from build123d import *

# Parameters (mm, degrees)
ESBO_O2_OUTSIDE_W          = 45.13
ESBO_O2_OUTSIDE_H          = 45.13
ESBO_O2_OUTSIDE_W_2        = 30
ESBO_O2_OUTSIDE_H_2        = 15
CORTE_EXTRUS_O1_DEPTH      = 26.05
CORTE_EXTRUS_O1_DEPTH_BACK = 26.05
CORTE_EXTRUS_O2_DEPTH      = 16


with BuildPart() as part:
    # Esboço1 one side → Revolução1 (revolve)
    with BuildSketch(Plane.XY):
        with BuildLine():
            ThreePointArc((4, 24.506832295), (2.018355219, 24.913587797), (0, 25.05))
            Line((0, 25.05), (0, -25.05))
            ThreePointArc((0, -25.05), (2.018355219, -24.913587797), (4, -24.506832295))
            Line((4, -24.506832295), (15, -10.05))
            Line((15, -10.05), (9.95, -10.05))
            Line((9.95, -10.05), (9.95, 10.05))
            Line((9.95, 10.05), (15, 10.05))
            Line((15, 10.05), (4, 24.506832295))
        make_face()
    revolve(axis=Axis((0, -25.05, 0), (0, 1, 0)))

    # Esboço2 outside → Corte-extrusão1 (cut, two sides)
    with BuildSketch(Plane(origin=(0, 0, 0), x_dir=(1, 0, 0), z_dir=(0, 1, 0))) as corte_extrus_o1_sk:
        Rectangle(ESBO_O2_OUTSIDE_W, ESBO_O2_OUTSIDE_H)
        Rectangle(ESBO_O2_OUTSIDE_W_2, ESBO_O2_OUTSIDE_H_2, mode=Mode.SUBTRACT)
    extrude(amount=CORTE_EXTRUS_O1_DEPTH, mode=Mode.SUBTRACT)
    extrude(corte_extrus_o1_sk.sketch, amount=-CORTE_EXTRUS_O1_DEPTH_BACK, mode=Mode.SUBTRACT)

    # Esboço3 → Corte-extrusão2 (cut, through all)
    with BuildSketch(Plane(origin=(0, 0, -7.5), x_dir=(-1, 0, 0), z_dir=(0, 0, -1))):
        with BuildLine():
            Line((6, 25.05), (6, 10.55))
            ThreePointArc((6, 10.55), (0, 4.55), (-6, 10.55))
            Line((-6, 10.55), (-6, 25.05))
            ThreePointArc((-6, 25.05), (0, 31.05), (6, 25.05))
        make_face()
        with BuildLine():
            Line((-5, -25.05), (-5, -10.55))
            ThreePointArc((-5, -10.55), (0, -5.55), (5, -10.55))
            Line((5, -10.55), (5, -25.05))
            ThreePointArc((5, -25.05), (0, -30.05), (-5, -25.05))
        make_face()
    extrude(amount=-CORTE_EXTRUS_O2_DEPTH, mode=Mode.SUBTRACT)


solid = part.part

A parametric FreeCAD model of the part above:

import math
import FreeCAD as App
import Part
import Sketcher
Q = App.Units.Quantity

doc = App.newDocument("Part")
body = doc.addObject("PartDesign::Body", "Body")

sketch1 = doc.addObject("Sketcher::SketchObject", "Sketch")
body.addObject(sketch1)
sketch1.AttachmentSupport = (doc.XY_Plane, [""])
sketch1.MapMode = "FlatFace"
sketch1.addGeometry([
    Part.ArcOfCircle(Part.Circle(App.Vector(0, 10.05, 0), App.Vector(0, 0, 1), 15), math.radians(74.53399), math.radians(90)),
    Part.LineSegment(App.Vector(0, 25.05, 0), App.Vector(0, -25.05, 0)),
    Part.ArcOfCircle(Part.Circle(App.Vector(0, -10.05, 0), App.Vector(0, 0, 1), 15), math.radians(-90), math.radians(-74.53399)),
    Part.LineSegment(App.Vector(4, -24.506832, 0), App.Vector(15, -10.05, 0)),
    Part.LineSegment(App.Vector(15, -10.05, 0), App.Vector(9.95, -10.05, 0)),
    Part.LineSegment(App.Vector(9.95, -10.05, 0), App.Vector(9.95, 10.05, 0)),
    Part.LineSegment(App.Vector(9.95, 10.05, 0), App.Vector(15, 10.05, 0)),
    Part.LineSegment(App.Vector(15, 10.05, 0), App.Vector(4, 24.506832, 0)),
], False)
sketch1.addConstraint([
    Sketcher.Constraint("Coincident", 0, 2, 1, 1),
    Sketcher.Constraint("Coincident", 1, 2, 2, 1),
    Sketcher.Constraint("Coincident", 2, 2, 3, 1),
    Sketcher.Constraint("Coincident", 3, 2, 4, 1),
    Sketcher.Constraint("Coincident", 4, 2, 5, 1),
    Sketcher.Constraint("Coincident", 5, 2, 6, 1),
    Sketcher.Constraint("Coincident", 6, 2, 7, 1),
    Sketcher.Constraint("Coincident", 7, 2, 0, 1),
    Sketcher.Constraint("Vertical", 1),
    Sketcher.Constraint("Horizontal", 4),
    Sketcher.Constraint("Vertical", 5),
    Sketcher.Constraint("Horizontal", 6),
    Sketcher.Constraint("Equal", 0, 2),
    Sketcher.Constraint("Symmetric", 0, 3, 2, 3, -1, 1),
    Sketcher.Constraint("Symmetric", 3, 2, 6, 2, -1),
    Sketcher.Constraint("Symmetric", 2, 2, 7, 2, -1),
    Sketcher.Constraint("PointOnObject", 0, 2, -2),
    Sketcher.Constraint("Horizontal", 2, 3, 3, 2),
    Sketcher.Constraint("Radius", 0, Q("15 mm")),
    Sketcher.Constraint("DistanceY", 1, 2, 1, 1, Q("50.1 mm")),
    Sketcher.Constraint("DistanceX", -1, 1, 2, 2, Q("4 mm")),
    Sketcher.Constraint("DistanceX", -1, 1, 3, 2, Q("15 mm")),
    Sketcher.Constraint("DistanceX", 4, 2, 4, 1, Q("5.05 mm")),
])
revolution = doc.addObject("PartDesign::Revolution", "Revolution")
body.addObject(revolution)
revolution.Profile = sketch1
revolution.ReferenceAxis = (sketch1, ["V_Axis"])
revolution.Angle = 360

sketch2 = doc.addObject("Sketcher::SketchObject", "Sketch001")
body.addObject(sketch2)
sketch2.AttachmentSupport = (doc.XZ_Plane, [""])
sketch2.MapMode = "FlatFace"
sketch2.addGeometry([
    Part.LineSegment(App.Vector(-22.565, -22.565, 0), App.Vector(-22.565, 22.565, 0)),
    Part.LineSegment(App.Vector(-22.565, 22.565, 0), App.Vector(22.565, 22.565, 0)),
    Part.LineSegment(App.Vector(22.565, 22.565, 0), App.Vector(22.565, -22.565, 0)),
    Part.LineSegment(App.Vector(22.565, -22.565, 0), App.Vector(-22.565, -22.565, 0)),
    Part.LineSegment(App.Vector(15, 7.5, 0), App.Vector(-15, 7.5, 0)),
    Part.LineSegment(App.Vector(-15, 7.5, 0), App.Vector(-15, -7.5, 0)),
    Part.LineSegment(App.Vector(-15, -7.5, 0), App.Vector(15, -7.5, 0)),
    Part.LineSegment(App.Vector(15, -7.5, 0), App.Vector(15, 7.5, 0)),
], False)
sketch2.addConstraint([
    Sketcher.Constraint("Coincident", 0, 2, 1, 1),
    Sketcher.Constraint("Coincident", 1, 2, 2, 1),
    Sketcher.Constraint("Coincident", 2, 2, 3, 1),
    Sketcher.Constraint("Coincident", 3, 2, 0, 1),
    Sketcher.Constraint("Coincident", 4, 2, 5, 1),
    Sketcher.Constraint("Coincident", 5, 2, 6, 1),
    Sketcher.Constraint("Coincident", 6, 2, 7, 1),
    Sketcher.Constraint("Coincident", 7, 2, 4, 1),
    Sketcher.Constraint("Vertical", 0),
    Sketcher.Constraint("Horizontal", 1),
    Sketcher.Constraint("Vertical", 2),
    Sketcher.Constraint("Horizontal", 3),
    Sketcher.Constraint("Horizontal", 4),
    Sketcher.Constraint("Vertical", 5),
    Sketcher.Constraint("Horizontal", 6),
    Sketcher.Constraint("Vertical", 7),
    Sketcher.Constraint("Symmetric", 0, 2, 2, 2, -1, 1),
    Sketcher.Constraint("Symmetric", 4, 2, 6, 2, -1, 1),
    Sketcher.Constraint("Equal", 3, 0),
    Sketcher.Constraint("DistanceX", 4, 2, 4, 1, Q("30 mm")),
    Sketcher.Constraint("DistanceY", 5, 2, 5, 1, Q("15 mm")),
    Sketcher.Constraint("DistanceX", 1, 1, 1, 2, Q("45.13 mm")),
])
pocket1 = doc.addObject("PartDesign::Pocket", "Pocket")
body.addObject(pocket1)
pocket1.Profile = sketch2
pocket1.Type = "ThroughAll"
pocket1.Midplane = True

sketch3 = doc.addObject("Sketcher::SketchObject", "Sketch002")
body.addObject(sketch3)
sketch3.AttachmentSupport = (doc.XY_Plane, [""])
sketch3.MapMode = "FlatFace"
sketch3.AttachmentOffset = App.Placement(App.Vector(0, 0, -7.5), App.Rotation())
sketch3.addGeometry([
    Part.LineSegment(App.Vector(-6, 10.55, 0), App.Vector(-6, 25.05, 0)),
    Part.ArcOfCircle(Part.Circle(App.Vector(0, 25.05, 0), App.Vector(0, 0, 1), 6), math.radians(0), math.radians(180)),
    Part.LineSegment(App.Vector(6, 25.05, 0), App.Vector(6, 10.55, 0)),
    Part.ArcOfCircle(Part.Circle(App.Vector(0, 10.55, 0), App.Vector(0, 0, 1), 6), math.radians(180), math.radians(360)),
    Part.LineSegment(App.Vector(5, -10.55, 0), App.Vector(5, -25.05, 0)),
    Part.ArcOfCircle(Part.Circle(App.Vector(0, -25.05, 0), App.Vector(0, 0, 1), 5), math.radians(180), math.radians(360)),
    Part.LineSegment(App.Vector(-5, -25.05, 0), App.Vector(-5, -10.55, 0)),
    Part.ArcOfCircle(Part.Circle(App.Vector(0, -10.55, 0), App.Vector(0, 0, 1), 5), math.radians(0), math.radians(180)),
], False)
sketch3.addConstraint([
    Sketcher.Constraint("Tangent", 0, 2, 1, 2),
    Sketcher.Constraint("Tangent", 1, 1, 2, 1),
    Sketcher.Constraint("Tangent", 2, 2, 3, 2),
    Sketcher.Constraint("Tangent", 3, 1, 0, 1),
    Sketcher.Constraint("Tangent", 4, 2, 5, 2),
    Sketcher.Constraint("Tangent", 5, 1, 6, 1),
    Sketcher.Constraint("Tangent", 6, 2, 7, 2),
    Sketcher.Constraint("Tangent", 7, 1, 4, 1),
    Sketcher.Constraint("Vertical", 0),
    Sketcher.Constraint("Vertical", 2),
    Sketcher.Constraint("Vertical", 4),
    Sketcher.Constraint("Vertical", 6),
    Sketcher.Constraint("Symmetric", 1, 3, 5, 3, -1, 1),
    Sketcher.Constraint("Symmetric", 3, 3, 7, 3, -1),
    Sketcher.Constraint("Radius", 1, Q("6 mm")),
    Sketcher.Constraint("Radius", 5, Q("5 mm")),
    Sketcher.Constraint("DistanceY", 0, 1, 0, 2, Q("14.5 mm")),
    Sketcher.Constraint("DistanceY", 5, 3, 3, 3, Q("35.6 mm")),
])
pocket2 = doc.addObject("PartDesign::Pocket", "Pocket001")
body.addObject(pocket2)
pocket2.Profile = sketch3
pocket2.Type = "ThroughAll"
pocket2.Reversed = True

doc.recompute()
